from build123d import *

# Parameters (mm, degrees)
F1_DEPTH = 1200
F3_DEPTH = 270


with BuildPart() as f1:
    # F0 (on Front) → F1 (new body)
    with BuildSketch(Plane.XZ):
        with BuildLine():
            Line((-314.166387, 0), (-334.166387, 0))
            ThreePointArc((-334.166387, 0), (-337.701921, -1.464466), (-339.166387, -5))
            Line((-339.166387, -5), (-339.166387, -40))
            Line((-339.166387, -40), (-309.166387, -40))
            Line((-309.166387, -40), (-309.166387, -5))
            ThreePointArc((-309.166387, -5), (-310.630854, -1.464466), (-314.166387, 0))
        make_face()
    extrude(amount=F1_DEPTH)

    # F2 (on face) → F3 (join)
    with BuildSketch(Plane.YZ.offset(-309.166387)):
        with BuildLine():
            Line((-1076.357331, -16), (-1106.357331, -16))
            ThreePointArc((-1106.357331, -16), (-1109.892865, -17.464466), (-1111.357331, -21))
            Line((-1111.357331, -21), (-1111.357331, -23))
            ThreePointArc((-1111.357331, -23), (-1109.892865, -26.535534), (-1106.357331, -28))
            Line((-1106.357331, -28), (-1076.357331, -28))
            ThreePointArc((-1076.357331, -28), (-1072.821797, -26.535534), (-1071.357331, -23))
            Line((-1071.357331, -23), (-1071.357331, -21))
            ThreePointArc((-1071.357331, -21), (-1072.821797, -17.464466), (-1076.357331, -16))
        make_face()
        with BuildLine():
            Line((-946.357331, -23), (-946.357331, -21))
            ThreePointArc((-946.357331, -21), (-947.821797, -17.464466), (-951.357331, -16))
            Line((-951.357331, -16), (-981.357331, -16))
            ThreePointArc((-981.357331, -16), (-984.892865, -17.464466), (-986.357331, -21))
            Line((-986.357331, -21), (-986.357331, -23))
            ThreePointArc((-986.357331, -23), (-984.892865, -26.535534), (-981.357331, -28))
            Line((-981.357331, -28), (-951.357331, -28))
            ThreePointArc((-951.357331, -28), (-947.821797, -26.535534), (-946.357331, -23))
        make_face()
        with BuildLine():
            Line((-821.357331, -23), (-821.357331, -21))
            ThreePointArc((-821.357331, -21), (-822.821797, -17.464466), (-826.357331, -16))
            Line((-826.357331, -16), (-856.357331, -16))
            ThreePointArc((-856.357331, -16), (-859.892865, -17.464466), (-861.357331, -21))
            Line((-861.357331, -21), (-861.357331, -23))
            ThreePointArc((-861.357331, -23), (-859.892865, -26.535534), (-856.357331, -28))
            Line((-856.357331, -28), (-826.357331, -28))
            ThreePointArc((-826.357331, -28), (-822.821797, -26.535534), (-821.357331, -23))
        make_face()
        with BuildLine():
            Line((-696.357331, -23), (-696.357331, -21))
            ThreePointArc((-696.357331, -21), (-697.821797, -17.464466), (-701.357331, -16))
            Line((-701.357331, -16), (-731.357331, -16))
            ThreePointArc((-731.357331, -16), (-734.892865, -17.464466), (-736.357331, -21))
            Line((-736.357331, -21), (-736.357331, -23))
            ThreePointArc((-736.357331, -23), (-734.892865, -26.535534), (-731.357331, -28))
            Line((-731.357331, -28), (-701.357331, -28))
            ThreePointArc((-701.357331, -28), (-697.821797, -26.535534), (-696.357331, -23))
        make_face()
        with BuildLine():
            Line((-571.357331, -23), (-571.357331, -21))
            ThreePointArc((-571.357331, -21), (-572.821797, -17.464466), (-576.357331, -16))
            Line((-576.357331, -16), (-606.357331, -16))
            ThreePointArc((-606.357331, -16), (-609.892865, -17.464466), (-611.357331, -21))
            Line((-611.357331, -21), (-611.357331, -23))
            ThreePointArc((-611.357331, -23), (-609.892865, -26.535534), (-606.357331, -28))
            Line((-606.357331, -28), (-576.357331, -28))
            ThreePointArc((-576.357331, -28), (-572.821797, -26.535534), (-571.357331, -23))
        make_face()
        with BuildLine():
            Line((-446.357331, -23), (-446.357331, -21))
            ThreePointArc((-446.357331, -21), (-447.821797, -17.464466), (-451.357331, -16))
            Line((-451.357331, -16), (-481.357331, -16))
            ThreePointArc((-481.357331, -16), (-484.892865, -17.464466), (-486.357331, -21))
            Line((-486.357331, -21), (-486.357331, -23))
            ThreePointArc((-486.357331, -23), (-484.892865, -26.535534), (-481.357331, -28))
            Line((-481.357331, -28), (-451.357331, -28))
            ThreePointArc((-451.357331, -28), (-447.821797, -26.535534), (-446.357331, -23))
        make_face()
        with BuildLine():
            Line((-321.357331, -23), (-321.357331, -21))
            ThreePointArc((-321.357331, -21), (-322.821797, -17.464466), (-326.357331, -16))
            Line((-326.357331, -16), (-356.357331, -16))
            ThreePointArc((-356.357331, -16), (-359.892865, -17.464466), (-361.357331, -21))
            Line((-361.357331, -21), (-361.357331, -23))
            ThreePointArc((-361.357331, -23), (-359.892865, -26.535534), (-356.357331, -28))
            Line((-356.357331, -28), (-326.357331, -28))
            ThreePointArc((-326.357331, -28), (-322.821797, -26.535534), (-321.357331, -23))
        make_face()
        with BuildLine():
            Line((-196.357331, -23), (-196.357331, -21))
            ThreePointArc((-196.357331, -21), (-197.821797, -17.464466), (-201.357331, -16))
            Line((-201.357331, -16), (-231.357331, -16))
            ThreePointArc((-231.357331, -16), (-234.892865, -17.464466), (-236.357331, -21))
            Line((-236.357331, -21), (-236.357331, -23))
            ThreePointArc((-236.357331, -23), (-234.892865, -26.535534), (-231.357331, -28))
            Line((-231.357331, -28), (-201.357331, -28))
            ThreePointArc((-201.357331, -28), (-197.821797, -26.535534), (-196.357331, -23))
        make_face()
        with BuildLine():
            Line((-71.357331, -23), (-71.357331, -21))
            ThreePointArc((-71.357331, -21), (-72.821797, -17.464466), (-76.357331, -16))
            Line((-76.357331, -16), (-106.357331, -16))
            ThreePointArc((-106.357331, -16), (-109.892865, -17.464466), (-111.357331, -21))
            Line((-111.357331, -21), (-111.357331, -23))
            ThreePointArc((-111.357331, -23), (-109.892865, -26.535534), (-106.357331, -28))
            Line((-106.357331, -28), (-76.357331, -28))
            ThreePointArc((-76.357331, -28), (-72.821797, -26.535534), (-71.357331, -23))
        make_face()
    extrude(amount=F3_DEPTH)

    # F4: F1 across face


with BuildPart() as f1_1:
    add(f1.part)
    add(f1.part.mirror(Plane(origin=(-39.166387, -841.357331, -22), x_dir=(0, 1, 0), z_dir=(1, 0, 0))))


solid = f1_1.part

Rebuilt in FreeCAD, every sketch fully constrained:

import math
import FreeCAD as App
import Part
import Sketcher

doc = App.newDocument("Part")
params = doc.addObject("Spreadsheet::Sheet", "Params")
for row, (alias, value) in enumerate([
    ("sketch1_radius", "5 mm"),
    ("sketch1_width", "20 mm"),
    ("sketch1_height", "35 mm"),
    ("pad1_length", "1200 mm"),
    ("sketch2_radius", "5 mm"),
    ("sketch2_width", "30 mm"),
    ("sketch2_height", "2 mm"),
    ("pad2_length", "270 mm"),
], start=1):
    params.set(f"A{row}", alias)
    params.set(f"B{row}", "=" + value)
    params.setAlias(f"B{row}", alias)

body = doc.addObject("PartDesign::Body", "Body")

sketch1 = body.newObject("Sketcher::SketchObject", "Sketch")
sketch1.AttachmentSupport = (doc.getObject("XZ_Plane"), [""])
sketch1.MapMode = "FlatFace"
sketch1.addGeometry([
    Part.LineSegment(App.Vector(-314.2, 0, 0), App.Vector(-334.2, 0, 0)),
    Part.ArcOfCircle(Part.Circle(App.Vector(-334.2, -5, 0), App.Vector(0, 0, 1), 5), math.radians(90), math.radians(180)),
    Part.LineSegment(App.Vector(-339.2, -5, 0), App.Vector(-339.2, -40, 0)),
    Part.LineSegment(App.Vector(-339.2, -40, 0), App.Vector(-309.2, -40, 0)),
    Part.LineSegment(App.Vector(-309.2, -40, 0), App.Vector(-309.2, -5, 0)),
    Part.ArcOfCircle(Part.Circle(App.Vector(-314.2, -5, 0), App.Vector(0, 0, 1), 5), math.radians(0), math.radians(90)),
], False)
sketch1.addConstraint([
    Sketcher.Constraint("Tangent", 0, 2, 1, 1),
    Sketcher.Constraint("Tangent", 1, 2, 2, 1),
    Sketcher.Constraint("Coincident", 2, 2, 3, 1),
    Sketcher.Constraint("Coincident", 3, 2, 4, 1),
    Sketcher.Constraint("Tangent", 4, 2, 5, 1),
    Sketcher.Constraint("Tangent", 5, 2, 0, 1),
    Sketcher.Constraint("Horizontal", 0),
    Sketcher.Constraint("Vertical", 2),
    Sketcher.Constraint("Horizontal", 3),
    Sketcher.Constraint("Vertical", 4),
    Sketcher.Constraint("Equal", 1, 5),
    Sketcher.Constraint("PointOnObject", 0, 2, -1),
    Sketcher.Constraint("Radius", 1, 5.0),
    Sketcher.Constraint("DistanceX", 0, 2, 0, 1, 20.0),
    Sketcher.Constraint("DistanceY", 2, 2, 2, 1, 35.0),
    Sketcher.Constraint("DistanceX", 5, 3, -1, 1, 314.166388),
])
sketch1.setExpression("Constraints[12]", "Params.sketch1_radius")
sketch1.setExpression("Constraints[13]", "Params.sketch1_width")
sketch1.setExpression("Constraints[14]", "Params.sketch1_height")
pad1 = body.newObject("PartDesign::Pad", "Pad")
pad1.Profile = sketch1
pad1.setExpression("Length", "Params.pad1_length")

sketch2 = body.newObject("Sketcher::SketchObject", "Sketch001")
sketch2.AttachmentSupport = (doc.getObject("YZ_Plane"), [""])
sketch2.MapMode = "FlatFace"
sketch2.AttachmentOffset = App.Placement(App.Vector(0, 0, -309.166387), App.Rotation())
sketch2.addGeometry([
    Part.LineSegment(App.Vector(-1076.4, -16, 0), App.Vector(-1106.4, -16, 0)),
    Part.ArcOfCircle(Part.Circle(App.Vector(-1106.4, -21, 0), App.Vector(0, 0, 1), 5), math.radians(90), math.radians(180)),
    Part.LineSegment(App.Vector(-1111.4, -21, 0), App.Vector(-1111.4, -23, 0)),
    Part.ArcOfCircle(Part.Circle(App.Vector(-1106.4, -23, 0), App.Vector(0, 0, 1), 5), math.radians(180), math.radians(270)),
    Part.LineSegment(App.Vector(-1106.4, -28, 0), App.Vector(-1076.4, -28, 0)),
    Part.ArcOfCircle(Part.Circle(App.Vector(-1076.4, -23, 0), App.Vector(0, 0, 1), 5), math.radians(-90), math.radians(0)),
    Part.LineSegment(App.Vector(-1071.4, -23, 0), App.Vector(-1071.4, -21, 0)),
    Part.ArcOfCircle(Part.Circle(App.Vector(-1076.4, -21, 0), App.Vector(0, 0, 1), 5), math.radians(0), math.radians(90)),
    Part.LineSegment(App.Vector(-946.4, -23, 0), App.Vector(-946.4, -21, 0)),
    Part.ArcOfCircle(Part.Circle(App.Vector(-951.4, -21, 0), App.Vector(0, 0, 1), 5), math.radians(0), math.radians(90)),
    Part.LineSegment(App.Vector(-951.4, -16, 0), App.Vector(-981.4, -16, 0)),
    Part.ArcOfCircle(Part.Circle(App.Vector(-981.4, -21, 0), App.Vector(0, 0, 1), 5), math.radians(90), math.radians(180)),
    Part.LineSegment(App.Vector(-986.4, -21, 0), App.Vector(-986.4, -23, 0)),
    Part.ArcOfCircle(Part.Circle(App.Vector(-981.4, -23, 0), App.Vector(0, 0, 1), 5), math.radians(180), math.radians(270)),
    Part.LineSegment(App.Vector(-981.4, -28, 0), App.Vector(-951.4, -28, 0)),
    Part.ArcOfCircle(Part.Circle(App.Vector(-951.4, -23, 0), App.Vector(0, 0, 1), 5), math.radians(-90), math.radians(0)),
    Part.LineSegment(App.Vector(-821.4, -23, 0), App.Vector(-821.4, -21, 0)),
    Part.ArcOfCircle(Part.Circle(App.Vector(-826.4, -21, 0), App.Vector(0, 0, 1), 5), math.radians(0), math.radians(90)),
    Part.LineSegment(App.Vector(-826.4, -16, 0), App.Vector(-856.4, -16, 0)),
    Part.ArcOfCircle(Part.Circle(App.Vector(-856.4, -21, 0), App.Vector(0, 0, 1), 5), math.radians(90), math.radians(180)),
    Part.LineSegment(App.Vector(-861.4, -21, 0), App.Vector(-861.4, -23, 0)),
    Part.ArcOfCircle(Part.Circle(App.Vector(-856.4, -23, 0), App.Vector(0, 0, 1), 5), math.radians(180), math.radians(270)),
    Part.LineSegment(App.Vector(-856.4, -28, 0), App.Vector(-826.4, -28, 0)),
    Part.ArcOfCircle(Part.Circle(App.Vector(-826.4, -23, 0), App.Vector(0, 0, 1), 5), math.radians(-90), math.radians(0)),
    Part.LineSegment(App.Vector(-696.4, -23, 0), App.Vector(-696.4, -21, 0)),
    Part.ArcOfCircle(Part.Circle(App.Vector(-701.4, -21, 0), App.Vector(0, 0, 1), 5), math.radians(0), math.radians(90)),
    Part.LineSegment(App.Vector(-701.4, -16, 0), App.Vector(-731.4, -16, 0)),
    Part.ArcOfCircle(Part.Circle(App.Vector(-731.4, -21, 0), App.Vector(0, 0, 1), 5), math.radians(90), math.radians(180)),
    Part.LineSegment(App.Vector(-736.4, -21, 0), App.Vector(-736.4, -23, 0)),
    Part.ArcOfCircle(Part.Circle(App.Vector(-731.4, -23, 0), App.Vector(0, 0, 1), 5), math.radians(180), math.radians(270)),
    Part.LineSegment(App.Vector(-731.4, -28, 0), App.Vector(-701.4, -28, 0)),
    Part.ArcOfCircle(Part.Circle(App.Vector(-701.4, -23, 0), App.Vector(0, 0, 1), 5), math.radians(-90), math.radians(0)),
    Part.LineSegment(App.Vector(-571.4, -23, 0), App.Vector(-571.4, -21, 0)),
    Part.ArcOfCircle(Part.Circle(App.Vector(-576.4, -21, 0), App.Vector(0, 0, 1), 5), math.radians(0), math.radians(90)),
    Part.LineSegment(App.Vector(-576.4, -16, 0), App.Vector(-606.4, -16, 0)),
    Part.ArcOfCircle(Part.Circle(App.Vector(-606.4, -21, 0), App.Vector(0, 0, 1), 5), math.radians(90), math.radians(180)),
    Part.LineSegment(App.Vector(-611.4, -21, 0), App.Vector(-611.4, -23, 0)),
    Part.ArcOfCircle(Part.Circle(App.Vector(-606.4, -23, 0), App.Vector(0, 0, 1), 5), math.radians(180), math.radians(270)),
    Part.LineSegment(App.Vector(-606.4, -28, 0), App.Vector(-576.4, -28, 0)),
    Part.ArcOfCircle(Part.Circle(App.Vector(-576.4, -23, 0), App.Vector(0, 0, 1), 5), math.radians(-90), math.radians(0)),
    Part.LineSegment(App.Vector(-446.4, -23, 0), App.Vector(-446.4, -21, 0)),
    Part.ArcOfCircle(Part.Circle(App.Vector(-451.4, -21, 0), App.Vector(0, 0, 1), 5), math.radians(0), math.radians(90)),
    Part.LineSegment(App.Vector(-451.4, -16, 0), App.Vector(-481.4, -16, 0)),
    Part.ArcOfCircle(Part.Circle(App.Vector(-481.4, -21, 0), App.Vector(0, 0, 1), 5), math.radians(90), math.radians(180)),
    Part.LineSegment(App.Vector(-486.4, -21, 0), App.Vector(-486.4, -23, 0)),
    Part.ArcOfCircle(Part.Circle(App.Vector(-481.4, -23, 0), App.Vector(0, 0, 1), 5), math.radians(180), math.radians(270)),
    Part.LineSegment(App.Vector(-481.4, -28, 0), App.Vector(-451.4, -28, 0)),
    Part.ArcOfCircle(Part.Circle(App.Vector(-451.4, -23, 0), App.Vector(0, 0, 1), 5), math.radians(-90), math.radians(0)),
    Part.LineSegment(App.Vector(-321.4, -23, 0), App.Vector(-321.4, -21, 0)),
    Part.ArcOfCircle(Part.Circle(App.Vector(-326.4, -21, 0), App.Vector(0, 0, 1), 5), math.radians(0), math.radians(90)),
    Part.LineSegment(App.Vector(-326.4, -16, 0), App.Vector(-356.4, -16, 0)),
    Part.ArcOfCircle(Part.Circle(App.Vector(-356.4, -21, 0), App.Vector(0, 0, 1), 5), math.radians(90), math.radians(180)),
    Part.LineSegment(App.Vector(-361.4, -21, 0), App.Vector(-361.4, -23, 0)),
    Part.ArcOfCircle(Part.Circle(App.Vector(-356.4, -23, 0), App.Vector(0, 0, 1), 5), math.radians(180), math.radians(270)),
    Part.LineSegment(App.Vector(-356.4, -28, 0), App.Vector(-326.4, -28, 0)),
    Part.ArcOfCircle(Part.Circle(App.Vector(-326.4, -23, 0), App.Vector(0, 0, 1), 5), math.radians(-90), math.radians(0)),
    Part.LineSegment(App.Vector(-196.4, -23, 0), App.Vector(-196.4, -21, 0)),
    Part.ArcOfCircle(Part.Circle(App.Vector(-201.4, -21, 0), App.Vector(0, 0, 1), 5), math.radians(0), math.radians(90)),
    Part.LineSegment(App.Vector(-201.4, -16, 0), App.Vector(-231.4, -16, 0)),
    Part.ArcOfCircle(Part.Circle(App.Vector(-231.4, -21, 0), App.Vector(0, 0, 1), 5), math.radians(90), math.radians(180)),
    Part.LineSegment(App.Vector(-236.4, -21, 0), App.Vector(-236.4, -23, 0)),
    Part.ArcOfCircle(Part.Circle(App.Vector(-231.4, -23, 0), App.Vector(0, 0, 1), 5), math.radians(180), math.radians(270)),
    Part.LineSegment(App.Vector(-231.4, -28, 0), App.Vector(-201.4, -28, 0)),
    Part.ArcOfCircle(Part.Circle(App.Vector(-201.4, -23, 0), App.Vector(0, 0, 1), 5), math.radians(-90), math.radians(0)),
    Part.LineSegment(App.Vector(-71.4, -23, 0), App.Vector(-71.4, -21, 0)),
    Part.ArcOfCircle(Part.Circle(App.Vector(-76.4, -21, 0), App.Vector(0, 0, 1), 5), math.radians(0), math.radians(90)),
    Part.LineSegment(App.Vector(-76.4, -16, 0), App.Vector(-106.4, -16, 0)),
    Part.ArcOfCircle(Part.Circle(App.Vector(-106.4, -21, 0), App.Vector(0, 0, 1), 5), math.radians(90), math.radians(180)),
    Part.LineSegment(App.Vector(-111.4, -21, 0), App.Vector(-111.4, -23, 0)),
    Part.ArcOfCircle(Part.Circle(App.Vector(-106.4, -23, 0), App.Vector(0, 0, 1), 5), math.radians(180), math.radians(270)),
    Part.LineSegment(App.Vector(-106.4, -28, 0), App.Vector(-76.4, -28, 0)),
    Part.ArcOfCircle(Part.Circle(App.Vector(-76.4, -23, 0), App.Vector(0, 0, 1), 5), math.radians(-90), math.radians(0)),
], False)
sketch2.addConstraint([
    Sketcher.Constraint("Tangent", 0, 2, 1, 1),
    Sketcher.Constraint("Tangent", 1, 2, 2, 1),
    Sketcher.Constraint("Tangent", 2, 2, 3, 1),
    Sketcher.Constraint("Tangent", 3, 2, 4, 1),
    Sketcher.Constraint("Tangent", 4, 2, 5, 1),
    Sketcher.Constraint("Tangent", 5, 2, 6, 1),
    Sketcher.Constraint("Tangent", 6, 2, 7, 1),
    Sketcher.Constraint("Tangent", 7, 2, 0, 1),
    Sketcher.Constraint("Tangent", 8, 2, 9, 1),
    Sketcher.Constraint("Tangent", 9, 2, 10, 1),
    Sketcher.Constraint("Tangent", 10, 2, 11, 1),
    Sketcher.Constraint("Tangent", 11, 2, 12, 1),
    Sketcher.Constraint("Tangent", 12, 2, 13, 1),
    Sketcher.Constraint("Tangent", 13, 2, 14, 1),
    Sketcher.Constraint("Tangent", 14, 2, 15, 1),
    Sketcher.Constraint("Tangent", 15, 2, 8, 1),
    Sketcher.Constraint("Tangent", 16, 2, 17, 1),
    Sketcher.Constraint("Tangent", 17, 2, 18, 1),
    Sketcher.Constraint("Tangent", 18, 2, 19, 1),
    Sketcher.Constraint("Tangent", 19, 2, 20, 1),
    Sketcher.Constraint("Tangent", 20, 2, 21, 1),
    Sketcher.Constraint("Tangent", 21, 2, 22, 1),
    Sketcher.Constraint("Tangent", 22, 2, 23, 1),
    Sketcher.Constraint("Tangent", 23, 2, 16, 1),
    Sketcher.Constraint("Tangent", 24, 2, 25, 1),
    Sketcher.Constraint("Tangent", 25, 2, 26, 1),
    Sketcher.Constraint("Tangent", 26, 2, 27, 1),
    Sketcher.Constraint("Tangent", 27, 2, 28, 1),
    Sketcher.Constraint("Tangent", 28, 2, 29, 1),
    Sketcher.Constraint("Tangent", 29, 2, 30, 1),
    Sketcher.Constraint("Tangent", 30, 2, 31, 1),
    Sketcher.Constraint("Tangent", 31, 2, 24, 1),
    Sketcher.Constraint("Tangent", 32, 2, 33, 1),
    Sketcher.Constraint("Tangent", 33, 2, 34, 1),
    Sketcher.Constraint("Tangent", 34, 2, 35, 1),
    Sketcher.Constraint("Tangent", 35, 2, 36, 1),
    Sketcher.Constraint("Tangent", 36, 2, 37, 1),
    Sketcher.Constraint("Tangent", 37, 2, 38, 1),
    Sketcher.Constraint("Tangent", 38, 2, 39, 1),
    Sketcher.Constraint("Tangent", 39, 2, 32, 1),
    Sketcher.Constraint("Tangent", 40, 2, 41, 1),
    Sketcher.Constraint("Tangent", 41, 2, 42, 1),
    Sketcher.Constraint("Tangent", 42, 2, 43, 1),
    Sketcher.Constraint("Tangent", 43, 2, 44, 1),
    Sketcher.Constraint("Tangent", 44, 2, 45, 1),
    Sketcher.Constraint("Tangent", 45, 2, 46, 1),
    Sketcher.Constraint("Tangent", 46, 2, 47, 1),
    Sketcher.Constraint("Tangent", 47, 2, 40, 1),
    Sketcher.Constraint("Tangent", 48, 2, 49, 1),
    Sketcher.Constraint("Tangent", 49, 2, 50, 1),
    Sketcher.Constraint("Tangent", 50, 2, 51, 1),
    Sketcher.Constraint("Tangent", 51, 2, 52, 1),
    Sketcher.Constraint("Tangent", 52, 2, 53, 1),
    Sketcher.Constraint("Tangent", 53, 2, 54, 1),
    Sketcher.Constraint("Tangent", 54, 2, 55, 1),
    Sketcher.Constraint("Tangent", 55, 2, 48, 1),
    Sketcher.Constraint("Tangent", 56, 2, 57, 1),
    Sketcher.Constraint("Tangent", 57, 2, 58, 1),
    Sketcher.Constraint("Tangent", 58, 2, 59, 1),
    Sketcher.Constraint("Tangent", 59, 2, 60, 1),
    Sketcher.Constraint("Tangent", 60, 2, 61, 1),
    Sketcher.Constraint("Tangent", 61, 2, 62, 1),
    Sketcher.Constraint("Tangent", 62, 2, 63, 1),
    Sketcher.Constraint("Tangent", 63, 2, 56, 1),
    Sketcher.Constraint("Tangent", 64, 2, 65, 1),
    Sketcher.Constraint("Tangent", 65, 2, 66, 1),
    Sketcher.Constraint("Tangent", 66, 2, 67, 1),
    Sketcher.Constraint("Tangent", 67, 2, 68, 1),
    Sketcher.Constraint("Tangent", 68, 2, 69, 1),
    Sketcher.Constraint("Tangent", 69, 2, 70, 1),
    Sketcher.Constraint("Tangent", 70, 2, 71, 1),
    Sketcher.Constraint("Tangent", 71, 2, 64, 1),
    Sketcher.Constraint("Horizontal", 0),
    Sketcher.Constraint("Vertical", 2),
    Sketcher.Constraint("Horizontal", 4),
    Sketcher.Constraint("Vertical", 6),
    Sketcher.Constraint("Vertical", 8),
    Sketcher.Constraint("Horizontal", 10),
    Sketcher.Constraint("Vertical", 12),
    Sketcher.Constraint("Horizontal", 14),
    Sketcher.Constraint("Vertical", 16),
    Sketcher.Constraint("Horizontal", 18),
    Sketcher.Constraint("Vertical", 20),
    Sketcher.Constraint("Horizontal", 22),
    Sketcher.Constraint("Vertical", 24),
    Sketcher.Constraint("Horizontal", 26),
    Sketcher.Constraint("Vertical", 28),
    Sketcher.Constraint("Horizontal", 30),
    Sketcher.Constraint("Vertical", 32),
    Sketcher.Constraint("Horizontal", 34),
    Sketcher.Constraint("Vertical", 36),
    Sketcher.Constraint("Horizontal", 38),
    Sketcher.Constraint("Vertical", 40),
    Sketcher.Constraint("Horizontal", 42),
    Sketcher.Constraint("Vertical", 44),
    Sketcher.Constraint("Horizontal", 46),
    Sketcher.Constraint("Vertical", 48),
    Sketcher.Constraint("Horizontal", 50),
    Sketcher.Constraint("Vertical", 52),
    Sketcher.Constraint("Horizontal", 54),
    Sketcher.Constraint("Vertical", 56),
    Sketcher.Constraint("Horizontal", 58),
    Sketcher.Constraint("Vertical", 60),
    Sketcher.Constraint("Horizontal", 62),
    Sketcher.Constraint("Vertical", 64),
    Sketcher.Constraint("Horizontal", 66),
    Sketcher.Constraint("Vertical", 68),
    Sketcher.Constraint("Horizontal", 70),
    Sketcher.Constraint("Equal", 1, 3),
    Sketcher.Constraint("Equal", 3, 5),
    Sketcher.Constraint("Equal", 5, 7),
    Sketcher.Constraint("Equal", 7, 9),
    Sketcher.Constraint("Equal", 9, 11),
    Sketcher.Constraint("Equal", 11, 13),
    Sketcher.Constraint("Equal", 13, 15),
    Sketcher.Constraint("Equal", 15, 17),
    Sketcher.Constraint("Equal", 17, 19),
    Sketcher.Constraint("Equal", 19, 21),
    Sketcher.Constraint("Equal", 21, 23),
    Sketcher.Constraint("Equal", 23, 25),
    Sketcher.Constraint("Equal", 25, 27),
    Sketcher.Constraint("Equal", 27, 29),
    Sketcher.Constraint("Equal", 29, 31),
    Sketcher.Constraint("Equal", 31, 33),
    Sketcher.Constraint("Equal", 33, 35),
    Sketcher.Constraint("Equal", 35, 37),
    Sketcher.Constraint("Equal", 37, 39),
    Sketcher.Constraint("Equal", 39, 41),
    Sketcher.Constraint("Equal", 41, 43),
    Sketcher.Constraint("Equal", 43, 45),
    Sketcher.Constraint("Equal", 45, 47),
    Sketcher.Constraint("Equal", 47, 49),
    Sketcher.Constraint("Equal", 49, 51),
    Sketcher.Constraint("Equal", 51, 53),
    Sketcher.Constraint("Equal", 53, 55),
    Sketcher.Constraint("Equal", 55, 57),
    Sketcher.Constraint("Equal", 57, 59),
    Sketcher.Constraint("Equal", 59, 61),
    Sketcher.Constraint("Equal", 61, 63),
    Sketcher.Constraint("Equal", 63, 65),
    Sketcher.Constraint("Equal", 65, 67),
    Sketcher.Constraint("Equal", 67, 69),
    Sketcher.Constraint("Equal", 69, 71),
    Sketcher.Constraint("Horizontal", 7, 3, 9, 3),
    Sketcher.Constraint("Horizontal", 5, 3, 13, 3),
    Sketcher.Constraint("Horizontal", 11, 3, 17, 3),
    Sketcher.Constraint("Horizontal", 15, 3, 21, 3),
    Sketcher.Constraint("Horizontal", 19, 3, 25, 3),
    Sketcher.Constraint("Horizontal", 23, 3, 29, 3),
    Sketcher.Constraint("Horizontal", 27, 3, 33, 3),
    Sketcher.Constraint("Horizontal", 31, 3, 37, 3),
    Sketcher.Constraint("Horizontal", 35, 3, 41, 3),
    Sketcher.Constraint("Horizontal", 39, 3, 45, 3),
    Sketcher.Constraint("Horizontal", 43, 3, 49, 3),
    Sketcher.Constraint("Horizontal", 47, 3, 53, 3),
    Sketcher.Constraint("Horizontal", 51, 3, 57, 3),
    Sketcher.Constraint("Horizontal", 55, 3, 61, 3),
    Sketcher.Constraint("Horizontal", 59, 3, 65, 3),
    Sketcher.Constraint("Horizontal", 63, 3, 69, 3),
    Sketcher.Constraint("Equal", 4, 10),
    Sketcher.Constraint("Equal", 14, 18),
    Sketcher.Constraint("Equal", 22, 26),
    Sketcher.Constraint("Equal", 30, 34),
    Sketcher.Constraint("Equal", 38, 42),
    Sketcher.Constraint("Equal", 46, 50),
    Sketcher.Constraint("Equal", 54, 58),
    Sketcher.Constraint("Equal", 62, 66),
    Sketcher.Constraint("Radius", 1, 5.0),
    Sketcher.Constraint("DistanceX", 0, 2, 0, 1, 30.0),
    Sketcher.Constraint("DistanceY", 2, 2, 2, 1, 2.0),
    Sketcher.Constraint("DistanceY", 1, 3, -1, 1, 21.0),
    Sketcher.Constraint("DistanceX", 1, 3, -1, 1, 1106.357331),
    Sketcher.Constraint("DistanceX", 9, 3, -1, 1, 951.357331),
    Sketcher.Constraint("DistanceX", 17, 3, -1, 1, 826.357331),
    Sketcher.Constraint("DistanceX", 25, 3, -1, 1, 701.357331),
    Sketcher.Constraint("DistanceX", 33, 3, -1, 1, 576.357331),
    Sketcher.Constraint("DistanceX", 41, 3, -1, 1, 451.357331),
    Sketcher.Constraint("DistanceX", 49, 3, -1, 1, 326.357331),
    Sketcher.Constraint("DistanceX", 57, 3, -1, 1, 201.357331),
    Sketcher.Constraint("DistanceX", 65, 3, -1, 1, 76.357331),
])
sketch2.setExpression("Constraints[167]", "Params.sketch2_radius")
sketch2.setExpression("Constraints[168]", "Params.sketch2_width")
sketch2.setExpression("Constraints[169]", "Params.sketch2_height")
pad2 = body.newObject("PartDesign::Pad", "Pad001")
pad2.Profile = sketch2
pad2.setExpression("Length", "Params.pad2_length")
body2 = doc.addObject("PartDesign::Body", "Body001")
doc.recompute()

body2.BaseFeature = body
doc.recompute()

mirroring = doc.addObject("Part::Mirroring", "Mirroring")
mirroring.Source = body
mirroring.Base = App.Vector(-39.166387, -841.357331, -22)
mirroring.Normal = App.Vector(1, 0, 0)
body3 = doc.addObject("PartDesign::Body", "Body002")
body3.BaseFeature = mirroring
boolean = body2.newObject("PartDesign::Boolean", "Boolean")
boolean.Type = "Fuse"
boolean.addObjects([body3])
doc.recompute()
mirroring.Visibility = False

doc.recompute()
